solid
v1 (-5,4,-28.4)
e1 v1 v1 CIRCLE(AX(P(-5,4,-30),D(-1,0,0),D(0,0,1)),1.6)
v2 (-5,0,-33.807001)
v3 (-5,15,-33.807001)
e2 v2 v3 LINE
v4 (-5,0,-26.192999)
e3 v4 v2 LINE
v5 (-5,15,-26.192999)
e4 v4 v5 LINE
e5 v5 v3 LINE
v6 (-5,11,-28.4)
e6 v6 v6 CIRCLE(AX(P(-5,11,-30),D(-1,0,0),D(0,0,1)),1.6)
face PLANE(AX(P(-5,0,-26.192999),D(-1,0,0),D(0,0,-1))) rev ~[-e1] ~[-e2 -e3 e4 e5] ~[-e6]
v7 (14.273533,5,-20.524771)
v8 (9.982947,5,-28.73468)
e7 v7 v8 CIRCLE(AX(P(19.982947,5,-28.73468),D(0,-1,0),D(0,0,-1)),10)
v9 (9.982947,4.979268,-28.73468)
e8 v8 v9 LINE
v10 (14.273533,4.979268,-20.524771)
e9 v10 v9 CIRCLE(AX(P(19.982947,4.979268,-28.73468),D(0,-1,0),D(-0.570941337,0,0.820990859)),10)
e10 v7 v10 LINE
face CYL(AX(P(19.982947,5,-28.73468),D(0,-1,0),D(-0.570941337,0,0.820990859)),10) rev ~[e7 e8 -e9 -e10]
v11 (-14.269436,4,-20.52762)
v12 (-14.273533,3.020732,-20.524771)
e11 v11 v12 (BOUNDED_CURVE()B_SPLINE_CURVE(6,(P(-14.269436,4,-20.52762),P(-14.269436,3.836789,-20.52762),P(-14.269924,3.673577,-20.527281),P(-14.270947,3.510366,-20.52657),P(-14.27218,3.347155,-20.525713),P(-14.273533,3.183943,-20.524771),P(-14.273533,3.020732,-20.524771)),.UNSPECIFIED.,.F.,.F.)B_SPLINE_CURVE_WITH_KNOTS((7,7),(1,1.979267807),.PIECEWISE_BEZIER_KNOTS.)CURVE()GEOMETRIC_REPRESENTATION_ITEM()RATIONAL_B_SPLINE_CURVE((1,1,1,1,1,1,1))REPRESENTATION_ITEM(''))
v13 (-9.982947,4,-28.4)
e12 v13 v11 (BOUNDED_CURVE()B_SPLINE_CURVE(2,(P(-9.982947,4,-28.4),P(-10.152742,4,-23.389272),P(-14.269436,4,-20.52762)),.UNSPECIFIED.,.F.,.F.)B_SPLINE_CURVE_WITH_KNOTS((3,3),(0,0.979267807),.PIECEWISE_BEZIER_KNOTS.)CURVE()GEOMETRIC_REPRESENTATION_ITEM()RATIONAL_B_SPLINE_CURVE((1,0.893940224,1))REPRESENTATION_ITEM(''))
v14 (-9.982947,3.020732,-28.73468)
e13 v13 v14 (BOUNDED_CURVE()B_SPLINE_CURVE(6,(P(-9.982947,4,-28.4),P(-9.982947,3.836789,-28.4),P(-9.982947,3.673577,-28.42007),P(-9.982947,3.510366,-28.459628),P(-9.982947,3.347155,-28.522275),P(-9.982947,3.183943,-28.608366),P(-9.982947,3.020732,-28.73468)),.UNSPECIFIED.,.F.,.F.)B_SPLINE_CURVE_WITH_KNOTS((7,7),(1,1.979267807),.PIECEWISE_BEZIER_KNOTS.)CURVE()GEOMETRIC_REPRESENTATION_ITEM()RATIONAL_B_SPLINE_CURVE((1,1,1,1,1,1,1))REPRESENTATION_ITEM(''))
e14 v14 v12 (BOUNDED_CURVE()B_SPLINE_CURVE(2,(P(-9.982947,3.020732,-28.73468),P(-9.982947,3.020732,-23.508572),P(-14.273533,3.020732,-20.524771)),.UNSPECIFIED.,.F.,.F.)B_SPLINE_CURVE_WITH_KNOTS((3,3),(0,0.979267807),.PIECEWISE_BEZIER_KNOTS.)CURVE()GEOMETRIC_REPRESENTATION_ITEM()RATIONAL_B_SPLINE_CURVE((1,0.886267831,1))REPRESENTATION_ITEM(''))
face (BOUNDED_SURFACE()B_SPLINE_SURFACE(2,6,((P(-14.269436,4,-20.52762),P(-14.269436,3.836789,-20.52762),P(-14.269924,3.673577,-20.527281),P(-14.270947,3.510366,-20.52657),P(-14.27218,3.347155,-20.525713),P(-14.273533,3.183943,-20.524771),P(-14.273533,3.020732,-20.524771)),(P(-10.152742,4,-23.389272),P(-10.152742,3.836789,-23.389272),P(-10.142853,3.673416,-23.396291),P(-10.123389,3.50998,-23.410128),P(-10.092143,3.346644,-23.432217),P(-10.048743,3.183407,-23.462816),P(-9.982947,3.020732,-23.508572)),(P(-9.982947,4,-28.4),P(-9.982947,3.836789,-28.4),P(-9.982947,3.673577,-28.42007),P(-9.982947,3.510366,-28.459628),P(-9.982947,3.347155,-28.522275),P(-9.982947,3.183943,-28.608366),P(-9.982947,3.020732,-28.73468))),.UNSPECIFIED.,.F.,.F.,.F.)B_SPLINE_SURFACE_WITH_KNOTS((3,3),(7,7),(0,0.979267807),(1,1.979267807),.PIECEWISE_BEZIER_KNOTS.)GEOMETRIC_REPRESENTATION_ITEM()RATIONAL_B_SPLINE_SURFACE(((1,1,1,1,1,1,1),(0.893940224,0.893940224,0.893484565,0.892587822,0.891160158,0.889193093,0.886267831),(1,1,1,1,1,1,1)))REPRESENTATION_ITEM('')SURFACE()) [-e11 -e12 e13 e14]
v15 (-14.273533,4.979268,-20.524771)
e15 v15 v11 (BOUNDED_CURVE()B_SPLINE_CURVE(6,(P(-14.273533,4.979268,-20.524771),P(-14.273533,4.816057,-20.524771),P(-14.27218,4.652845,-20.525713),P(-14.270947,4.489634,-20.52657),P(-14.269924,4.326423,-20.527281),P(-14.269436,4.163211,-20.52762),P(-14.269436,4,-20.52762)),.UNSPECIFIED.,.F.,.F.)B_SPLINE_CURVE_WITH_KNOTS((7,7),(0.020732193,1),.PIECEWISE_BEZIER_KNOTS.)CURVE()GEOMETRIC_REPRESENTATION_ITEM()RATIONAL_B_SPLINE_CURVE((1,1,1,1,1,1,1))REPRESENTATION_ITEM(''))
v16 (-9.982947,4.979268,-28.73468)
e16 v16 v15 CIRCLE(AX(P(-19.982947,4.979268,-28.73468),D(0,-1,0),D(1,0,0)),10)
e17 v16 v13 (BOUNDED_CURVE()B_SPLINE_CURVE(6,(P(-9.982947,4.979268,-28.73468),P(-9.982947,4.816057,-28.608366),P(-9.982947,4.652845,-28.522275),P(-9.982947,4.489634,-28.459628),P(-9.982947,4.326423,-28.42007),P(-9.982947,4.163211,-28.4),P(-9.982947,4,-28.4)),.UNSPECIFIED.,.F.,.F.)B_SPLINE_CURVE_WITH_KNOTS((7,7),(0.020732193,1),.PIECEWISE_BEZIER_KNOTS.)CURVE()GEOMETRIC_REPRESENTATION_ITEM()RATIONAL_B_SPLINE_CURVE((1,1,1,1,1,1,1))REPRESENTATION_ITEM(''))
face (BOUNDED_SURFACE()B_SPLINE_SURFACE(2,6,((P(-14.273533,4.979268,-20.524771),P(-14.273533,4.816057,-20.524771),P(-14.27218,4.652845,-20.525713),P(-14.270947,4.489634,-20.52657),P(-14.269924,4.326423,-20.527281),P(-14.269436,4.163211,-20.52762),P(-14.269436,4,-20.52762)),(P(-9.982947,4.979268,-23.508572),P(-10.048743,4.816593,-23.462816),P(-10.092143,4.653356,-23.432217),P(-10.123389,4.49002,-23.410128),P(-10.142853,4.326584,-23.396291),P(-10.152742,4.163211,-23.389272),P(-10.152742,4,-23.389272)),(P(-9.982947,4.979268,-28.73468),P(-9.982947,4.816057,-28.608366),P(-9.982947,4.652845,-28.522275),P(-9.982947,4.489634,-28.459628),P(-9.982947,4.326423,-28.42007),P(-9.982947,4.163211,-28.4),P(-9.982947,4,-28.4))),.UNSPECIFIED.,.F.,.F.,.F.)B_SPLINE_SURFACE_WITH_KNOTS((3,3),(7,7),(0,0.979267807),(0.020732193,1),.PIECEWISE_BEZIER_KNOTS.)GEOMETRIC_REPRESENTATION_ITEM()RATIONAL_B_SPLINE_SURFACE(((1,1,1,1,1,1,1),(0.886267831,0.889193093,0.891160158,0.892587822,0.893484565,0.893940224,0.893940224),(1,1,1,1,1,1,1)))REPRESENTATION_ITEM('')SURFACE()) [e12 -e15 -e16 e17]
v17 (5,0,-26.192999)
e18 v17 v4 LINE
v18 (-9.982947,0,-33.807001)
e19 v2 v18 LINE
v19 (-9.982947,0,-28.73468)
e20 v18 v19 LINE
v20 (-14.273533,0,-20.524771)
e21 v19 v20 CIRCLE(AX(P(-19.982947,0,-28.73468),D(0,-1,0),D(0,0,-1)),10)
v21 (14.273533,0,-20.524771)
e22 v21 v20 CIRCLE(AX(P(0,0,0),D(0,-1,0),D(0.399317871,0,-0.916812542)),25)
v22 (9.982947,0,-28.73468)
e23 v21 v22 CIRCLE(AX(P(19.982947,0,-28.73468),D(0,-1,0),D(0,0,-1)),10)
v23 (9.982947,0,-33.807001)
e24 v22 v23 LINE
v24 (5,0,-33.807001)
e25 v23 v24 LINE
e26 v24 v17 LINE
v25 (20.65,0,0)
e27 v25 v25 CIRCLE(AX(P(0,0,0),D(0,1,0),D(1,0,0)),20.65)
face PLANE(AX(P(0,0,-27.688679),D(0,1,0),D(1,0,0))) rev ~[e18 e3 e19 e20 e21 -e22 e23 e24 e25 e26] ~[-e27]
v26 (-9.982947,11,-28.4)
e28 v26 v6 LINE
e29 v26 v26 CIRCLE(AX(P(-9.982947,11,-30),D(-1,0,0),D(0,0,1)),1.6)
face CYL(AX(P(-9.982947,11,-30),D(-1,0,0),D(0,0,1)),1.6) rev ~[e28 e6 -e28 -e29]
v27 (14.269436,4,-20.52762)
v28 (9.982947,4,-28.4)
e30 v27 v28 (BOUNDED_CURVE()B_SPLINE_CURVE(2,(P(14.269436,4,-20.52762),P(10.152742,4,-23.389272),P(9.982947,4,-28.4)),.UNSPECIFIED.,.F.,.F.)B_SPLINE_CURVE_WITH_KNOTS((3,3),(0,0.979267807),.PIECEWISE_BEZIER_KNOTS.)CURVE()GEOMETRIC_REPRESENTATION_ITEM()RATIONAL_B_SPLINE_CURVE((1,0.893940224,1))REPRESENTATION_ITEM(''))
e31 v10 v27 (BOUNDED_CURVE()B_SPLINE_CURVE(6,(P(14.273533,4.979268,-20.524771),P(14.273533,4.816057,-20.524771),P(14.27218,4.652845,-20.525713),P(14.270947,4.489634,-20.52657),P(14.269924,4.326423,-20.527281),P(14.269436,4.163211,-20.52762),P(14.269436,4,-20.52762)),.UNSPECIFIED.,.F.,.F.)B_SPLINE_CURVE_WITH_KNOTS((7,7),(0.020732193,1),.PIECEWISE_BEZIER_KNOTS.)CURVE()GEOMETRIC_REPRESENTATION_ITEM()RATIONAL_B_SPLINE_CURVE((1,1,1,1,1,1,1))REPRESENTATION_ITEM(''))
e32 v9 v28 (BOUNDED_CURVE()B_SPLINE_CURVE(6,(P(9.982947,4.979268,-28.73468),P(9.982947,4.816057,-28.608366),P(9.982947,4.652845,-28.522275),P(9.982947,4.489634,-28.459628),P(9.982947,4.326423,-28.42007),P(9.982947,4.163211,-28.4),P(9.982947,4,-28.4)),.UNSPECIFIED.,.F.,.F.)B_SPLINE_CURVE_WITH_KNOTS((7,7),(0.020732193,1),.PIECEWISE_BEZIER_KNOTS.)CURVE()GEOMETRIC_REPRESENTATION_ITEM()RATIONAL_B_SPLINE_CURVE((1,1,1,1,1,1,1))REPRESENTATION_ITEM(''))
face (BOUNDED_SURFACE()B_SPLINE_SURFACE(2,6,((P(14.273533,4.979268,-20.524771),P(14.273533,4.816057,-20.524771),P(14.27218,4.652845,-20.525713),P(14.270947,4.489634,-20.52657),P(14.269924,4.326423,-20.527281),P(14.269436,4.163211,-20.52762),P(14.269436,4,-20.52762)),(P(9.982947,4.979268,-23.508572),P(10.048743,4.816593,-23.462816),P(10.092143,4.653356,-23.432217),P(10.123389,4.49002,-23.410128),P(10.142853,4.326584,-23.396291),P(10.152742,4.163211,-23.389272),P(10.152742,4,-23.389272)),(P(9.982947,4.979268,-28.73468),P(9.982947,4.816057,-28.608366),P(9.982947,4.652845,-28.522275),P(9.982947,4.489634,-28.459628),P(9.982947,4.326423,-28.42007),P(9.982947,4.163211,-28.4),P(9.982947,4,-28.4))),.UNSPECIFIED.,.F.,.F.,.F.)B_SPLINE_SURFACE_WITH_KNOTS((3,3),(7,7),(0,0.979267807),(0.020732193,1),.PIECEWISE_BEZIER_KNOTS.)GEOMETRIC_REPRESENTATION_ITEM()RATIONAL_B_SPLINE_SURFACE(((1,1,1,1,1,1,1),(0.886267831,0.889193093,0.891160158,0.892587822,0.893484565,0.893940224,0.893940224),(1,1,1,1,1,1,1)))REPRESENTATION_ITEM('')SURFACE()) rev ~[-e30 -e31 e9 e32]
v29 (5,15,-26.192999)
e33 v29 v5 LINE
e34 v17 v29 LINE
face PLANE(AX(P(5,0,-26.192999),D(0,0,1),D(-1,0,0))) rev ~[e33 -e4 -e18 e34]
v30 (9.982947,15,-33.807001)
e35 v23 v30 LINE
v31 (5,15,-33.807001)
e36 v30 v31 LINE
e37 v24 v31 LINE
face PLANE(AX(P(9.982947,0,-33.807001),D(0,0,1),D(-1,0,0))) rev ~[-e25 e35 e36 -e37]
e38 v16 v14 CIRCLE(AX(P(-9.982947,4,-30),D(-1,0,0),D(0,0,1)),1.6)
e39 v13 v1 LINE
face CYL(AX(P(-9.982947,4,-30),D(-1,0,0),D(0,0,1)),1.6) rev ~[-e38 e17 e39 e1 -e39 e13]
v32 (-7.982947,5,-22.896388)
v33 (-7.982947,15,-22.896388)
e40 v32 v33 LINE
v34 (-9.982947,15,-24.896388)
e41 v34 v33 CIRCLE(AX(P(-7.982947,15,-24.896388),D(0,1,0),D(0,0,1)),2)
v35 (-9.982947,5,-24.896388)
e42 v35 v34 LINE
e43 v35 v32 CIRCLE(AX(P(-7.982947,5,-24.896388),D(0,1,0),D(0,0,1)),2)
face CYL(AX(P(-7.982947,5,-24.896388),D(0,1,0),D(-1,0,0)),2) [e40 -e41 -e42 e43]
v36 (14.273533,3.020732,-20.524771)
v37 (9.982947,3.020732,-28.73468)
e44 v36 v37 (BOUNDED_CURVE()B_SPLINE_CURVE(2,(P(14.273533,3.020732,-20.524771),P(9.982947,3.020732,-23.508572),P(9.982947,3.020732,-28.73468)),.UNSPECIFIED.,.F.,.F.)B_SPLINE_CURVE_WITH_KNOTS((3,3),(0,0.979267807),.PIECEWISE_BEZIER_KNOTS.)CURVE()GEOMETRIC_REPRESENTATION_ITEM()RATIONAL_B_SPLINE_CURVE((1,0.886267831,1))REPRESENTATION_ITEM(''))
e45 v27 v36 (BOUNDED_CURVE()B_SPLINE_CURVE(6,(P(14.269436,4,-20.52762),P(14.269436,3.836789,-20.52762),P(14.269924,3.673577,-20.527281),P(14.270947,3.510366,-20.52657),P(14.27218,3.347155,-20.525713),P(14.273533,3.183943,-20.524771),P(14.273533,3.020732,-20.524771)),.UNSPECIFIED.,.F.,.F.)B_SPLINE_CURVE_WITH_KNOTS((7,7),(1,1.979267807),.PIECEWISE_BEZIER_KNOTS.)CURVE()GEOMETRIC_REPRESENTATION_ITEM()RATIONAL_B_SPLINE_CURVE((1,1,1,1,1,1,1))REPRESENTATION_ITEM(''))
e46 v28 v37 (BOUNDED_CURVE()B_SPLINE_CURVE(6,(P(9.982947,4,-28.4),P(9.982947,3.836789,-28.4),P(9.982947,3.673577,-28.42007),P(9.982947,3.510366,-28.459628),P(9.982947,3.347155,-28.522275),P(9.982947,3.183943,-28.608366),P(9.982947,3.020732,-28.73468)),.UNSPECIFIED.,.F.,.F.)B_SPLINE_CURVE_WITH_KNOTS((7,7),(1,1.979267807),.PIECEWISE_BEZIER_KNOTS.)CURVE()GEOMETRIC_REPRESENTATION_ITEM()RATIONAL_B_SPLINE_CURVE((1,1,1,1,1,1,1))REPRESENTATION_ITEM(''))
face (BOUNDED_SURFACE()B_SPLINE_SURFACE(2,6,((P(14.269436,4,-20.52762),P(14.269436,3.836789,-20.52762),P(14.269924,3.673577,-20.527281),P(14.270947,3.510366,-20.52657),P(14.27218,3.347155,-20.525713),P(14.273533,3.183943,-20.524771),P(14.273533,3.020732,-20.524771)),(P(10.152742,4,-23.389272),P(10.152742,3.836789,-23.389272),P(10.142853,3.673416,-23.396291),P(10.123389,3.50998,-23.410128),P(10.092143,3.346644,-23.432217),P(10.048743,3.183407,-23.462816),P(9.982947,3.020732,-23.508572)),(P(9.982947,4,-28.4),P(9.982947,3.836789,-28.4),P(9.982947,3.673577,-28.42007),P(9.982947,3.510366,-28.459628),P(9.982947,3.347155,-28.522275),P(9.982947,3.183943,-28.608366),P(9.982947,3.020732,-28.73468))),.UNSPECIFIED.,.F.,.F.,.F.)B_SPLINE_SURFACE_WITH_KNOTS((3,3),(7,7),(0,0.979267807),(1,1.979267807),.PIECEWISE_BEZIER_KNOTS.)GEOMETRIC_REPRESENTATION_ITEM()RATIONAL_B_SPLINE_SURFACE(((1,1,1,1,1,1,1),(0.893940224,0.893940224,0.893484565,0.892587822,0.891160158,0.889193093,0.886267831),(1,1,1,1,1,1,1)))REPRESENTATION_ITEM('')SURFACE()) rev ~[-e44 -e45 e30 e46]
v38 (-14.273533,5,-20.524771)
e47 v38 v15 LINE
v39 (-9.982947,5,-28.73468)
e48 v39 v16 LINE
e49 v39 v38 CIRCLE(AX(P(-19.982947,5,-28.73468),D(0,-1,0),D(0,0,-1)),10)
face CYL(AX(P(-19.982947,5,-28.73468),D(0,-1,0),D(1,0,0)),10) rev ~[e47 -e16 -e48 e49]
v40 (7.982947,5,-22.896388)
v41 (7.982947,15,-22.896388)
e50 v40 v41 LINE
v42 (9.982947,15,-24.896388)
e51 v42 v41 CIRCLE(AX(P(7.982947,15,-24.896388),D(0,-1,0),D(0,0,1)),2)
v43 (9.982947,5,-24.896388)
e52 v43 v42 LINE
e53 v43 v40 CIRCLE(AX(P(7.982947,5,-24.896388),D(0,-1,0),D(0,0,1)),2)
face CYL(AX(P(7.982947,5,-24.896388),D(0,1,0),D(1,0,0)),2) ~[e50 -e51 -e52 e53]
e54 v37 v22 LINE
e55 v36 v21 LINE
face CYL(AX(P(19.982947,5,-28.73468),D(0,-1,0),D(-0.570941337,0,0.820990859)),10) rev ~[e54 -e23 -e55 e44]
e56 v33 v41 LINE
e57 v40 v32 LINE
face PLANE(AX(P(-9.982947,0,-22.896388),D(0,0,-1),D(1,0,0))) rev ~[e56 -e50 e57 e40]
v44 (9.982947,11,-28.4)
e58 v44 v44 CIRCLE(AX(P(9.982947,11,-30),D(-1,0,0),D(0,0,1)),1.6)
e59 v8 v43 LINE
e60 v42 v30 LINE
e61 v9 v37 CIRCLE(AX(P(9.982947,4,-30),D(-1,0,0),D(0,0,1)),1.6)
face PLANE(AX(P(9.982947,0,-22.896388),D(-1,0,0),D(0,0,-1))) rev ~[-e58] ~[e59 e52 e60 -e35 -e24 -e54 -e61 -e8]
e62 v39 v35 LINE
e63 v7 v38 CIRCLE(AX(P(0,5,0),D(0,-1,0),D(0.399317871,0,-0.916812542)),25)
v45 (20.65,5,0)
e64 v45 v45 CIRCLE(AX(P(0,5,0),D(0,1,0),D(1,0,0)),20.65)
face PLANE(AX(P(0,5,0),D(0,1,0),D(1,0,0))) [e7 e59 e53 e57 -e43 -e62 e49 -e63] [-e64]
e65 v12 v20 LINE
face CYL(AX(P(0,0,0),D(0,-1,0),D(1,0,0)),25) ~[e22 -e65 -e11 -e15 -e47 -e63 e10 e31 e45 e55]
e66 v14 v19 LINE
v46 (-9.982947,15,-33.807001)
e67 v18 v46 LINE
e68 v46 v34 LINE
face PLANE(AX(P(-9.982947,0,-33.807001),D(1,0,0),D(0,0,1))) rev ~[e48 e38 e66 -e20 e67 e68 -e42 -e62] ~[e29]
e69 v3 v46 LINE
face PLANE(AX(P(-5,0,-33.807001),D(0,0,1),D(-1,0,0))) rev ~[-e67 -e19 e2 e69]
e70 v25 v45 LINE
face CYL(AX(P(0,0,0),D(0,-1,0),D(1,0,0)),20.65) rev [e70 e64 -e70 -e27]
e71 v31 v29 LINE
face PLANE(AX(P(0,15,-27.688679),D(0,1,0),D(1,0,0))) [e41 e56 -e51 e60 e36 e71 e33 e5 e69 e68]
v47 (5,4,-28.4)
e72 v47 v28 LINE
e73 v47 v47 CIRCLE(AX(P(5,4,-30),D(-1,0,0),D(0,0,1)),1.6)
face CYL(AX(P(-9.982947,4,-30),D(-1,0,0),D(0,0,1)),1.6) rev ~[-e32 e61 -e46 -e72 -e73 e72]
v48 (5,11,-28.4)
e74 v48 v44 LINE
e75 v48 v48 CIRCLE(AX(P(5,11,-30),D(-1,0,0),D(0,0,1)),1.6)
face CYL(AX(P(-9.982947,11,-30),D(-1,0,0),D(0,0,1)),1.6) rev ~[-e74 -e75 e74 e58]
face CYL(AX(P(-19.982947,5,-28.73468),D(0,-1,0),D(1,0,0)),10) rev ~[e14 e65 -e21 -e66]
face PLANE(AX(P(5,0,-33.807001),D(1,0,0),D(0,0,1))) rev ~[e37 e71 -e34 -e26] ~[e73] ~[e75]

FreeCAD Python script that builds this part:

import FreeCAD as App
import Part
import Sketcher

V = App.Vector


def edges_at(feature, points):
    """Names of the edges that pass closest to the given points."""
    edges = feature.Shape.Edges
    near = lambda p: min(range(len(edges)), key=lambda i: edges[i].distToShape(Part.Vertex(*p))[0])
    return sorted({f"Edge{near(p) + 1}" for p in points})

doc = App.newDocument("Part")
body = doc.addObject("PartDesign::Body", "Body")

# Sketch on XZ plane
sketch1 = doc.addObject("Sketcher::SketchObject", "Sketch")
body.addObject(sketch1)
sketch1.AttachmentSupport = (doc.XZ_Plane, [""])
sketch1.MapMode = "FlatFace"
sketch1.addGeometry([
    Part.Circle(V(0, 0, 0), V(0, 0, 1), 25),
    Part.Circle(V(0, 0, 0), V(0, 0, 1), 20.65),
], False)
sketch1.addConstraint([
    Sketcher.Constraint("Coincident", 0, 3, -1, 1),
    Sketcher.Constraint("Coincident", 1, 3, -1, 1),
    Sketcher.Constraint("Diameter", 0, 50.0),
    Sketcher.Constraint("Diameter", 1, 41.3),
])
pad1 = doc.addObject("PartDesign::Pad", "Pad")
body.addObject(pad1)
pad1.Profile = sketch1
pad1.Length = 5
pad1.Reversed = True

# Sketch on XZ plane
sketch2 = doc.addObject("Sketcher::SketchObject", "Sketch001")
body.addObject(sketch2)
sketch2.AttachmentSupport = (doc.XZ_Plane, [""])
sketch2.MapMode = "FlatFace"
sketch2.addGeometry([
    Part.LineSegment(V(-5, -33.807001, 0), V(-9.982947, -33.807001, 0)),  # 0
    Part.LineSegment(V(-9.982947, -33.807001, 0), V(-9.982947, -22.896388, 0)),  # 1
    Part.LineSegment(V(-9.982947, -22.896388, 0), V(9.982947, -22.896388, 0)),  # 2
    Part.LineSegment(V(9.982947, -22.896388, 0), V(9.982947, -33.807001, 0)),  # 3
    Part.LineSegment(V(9.982947, -33.807001, 0), V(5, -33.807001, 0)),  # 4
    Part.LineSegment(V(5, -33.807001, 0), V(5, -26.192999, 0)),  # 5
    Part.LineSegment(V(5, -26.192999, 0), V(-5, -26.192999, 0)),  # 6
    Part.LineSegment(V(-5, -26.192999, 0), V(-5, -33.807001, 0)),  # 7
], False)
sketch2.addConstraint([
    Sketcher.Constraint("Coincident", 0, 2, 1, 1),
    Sketcher.Constraint("Coincident", 1, 2, 2, 1),
    Sketcher.Constraint("Coincident", 2, 2, 3, 1),
    Sketcher.Constraint("Coincident", 3, 2, 4, 1),
    Sketcher.Constraint("Coincident", 4, 2, 5, 1),
    Sketcher.Constraint("Coincident", 5, 2, 6, 1),
    Sketcher.Constraint("Coincident", 6, 2, 7, 1),
    Sketcher.Constraint("Coincident", 7, 2, 0, 1),
    Sketcher.Constraint("Horizontal", 0),
    Sketcher.Constraint("Vertical", 1),
    Sketcher.Constraint("Horizontal", 2),
    Sketcher.Constraint("Vertical", 3),
    Sketcher.Constraint("Horizontal", 4),
    Sketcher.Constraint("Vertical", 5),
    Sketcher.Constraint("Horizontal", 6),
    Sketcher.Constraint("Vertical", 7),
    Sketcher.Constraint("Symmetric", 0, 2, 3, 2, -2),
    Sketcher.Constraint("Equal", 0, 4),
    Sketcher.Constraint("DistanceX", 6, 2, 6, 1, 10.0),
    Sketcher.Constraint("DistanceY", 5, 1, 5, 2, 7.614002),
    Sketcher.Constraint("DistanceY", 0, 2, -1, 1, 33.807001),
    Sketcher.Constraint("DistanceX", 0, 2, 0, 1, 4.982947),
    Sketcher.Constraint("DistanceY", 1, 1, 1, 2, 10.910613),
])
pad2 = doc.addObject("PartDesign::Pad", "Pad001")
body.addObject(pad2)
pad2.Profile = sketch2
pad2.Length = 15
pad2.Reversed = True

# Sketch on YZ plane
sketch3 = doc.addObject("Sketcher::SketchObject", "Sketch002")
body.addObject(sketch3)
sketch3.AttachmentSupport = (doc.YZ_Plane, [""])
sketch3.MapMode = "FlatFace"
sketch3.AttachmentOffset = App.Placement(V(0, 0, -9.982947), App.Rotation())
sketch3.addGeometry([
    Part.Circle(V(4, -30, 0), V(0, 0, 1), 1.6),
    Part.Circle(V(11, -30, 0), V(0, 0, 1), 1.6),
], False)
sketch3.addConstraint([
    Sketcher.Constraint("Equal", 0, 1),
    Sketcher.Constraint("Horizontal", 0, 3, 1, 3),
    Sketcher.Constraint("Diameter", 0, 3.2),
    Sketcher.Constraint("DistanceX", -1, 1, 0, 3, 4.0),
    Sketcher.Constraint("DistanceY", 0, 3, -1, 1, 30.0),
    Sketcher.Constraint("DistanceX", -1, 1, 1, 3, 11.0),
])
pocket1 = doc.addObject("PartDesign::Pocket", "Pocket")
body.addObject(pocket1)
pocket1.Profile = sketch3
pocket1.Type = "ThroughAll"
pocket1.Reversed = True
doc.recompute()

fillet = doc.addObject("PartDesign::Fillet", "Fillet")
body.addObject(fillet)
fillet.Base = (pocket1, edges_at(pocket1, [(9.983, 2.5, -22.92), (-9.983, 2.5, -22.92)]))
fillet.Radius = 10
doc.recompute()

fillet2 = doc.addObject("PartDesign::Fillet", "Fillet001")
body.addObject(fillet2)
fillet2.Base = (fillet, edges_at(fillet, [(-9.983, 10, -22.896), (9.983, 10, -22.896)]))
fillet2.Radius = 2

doc.recompute()
